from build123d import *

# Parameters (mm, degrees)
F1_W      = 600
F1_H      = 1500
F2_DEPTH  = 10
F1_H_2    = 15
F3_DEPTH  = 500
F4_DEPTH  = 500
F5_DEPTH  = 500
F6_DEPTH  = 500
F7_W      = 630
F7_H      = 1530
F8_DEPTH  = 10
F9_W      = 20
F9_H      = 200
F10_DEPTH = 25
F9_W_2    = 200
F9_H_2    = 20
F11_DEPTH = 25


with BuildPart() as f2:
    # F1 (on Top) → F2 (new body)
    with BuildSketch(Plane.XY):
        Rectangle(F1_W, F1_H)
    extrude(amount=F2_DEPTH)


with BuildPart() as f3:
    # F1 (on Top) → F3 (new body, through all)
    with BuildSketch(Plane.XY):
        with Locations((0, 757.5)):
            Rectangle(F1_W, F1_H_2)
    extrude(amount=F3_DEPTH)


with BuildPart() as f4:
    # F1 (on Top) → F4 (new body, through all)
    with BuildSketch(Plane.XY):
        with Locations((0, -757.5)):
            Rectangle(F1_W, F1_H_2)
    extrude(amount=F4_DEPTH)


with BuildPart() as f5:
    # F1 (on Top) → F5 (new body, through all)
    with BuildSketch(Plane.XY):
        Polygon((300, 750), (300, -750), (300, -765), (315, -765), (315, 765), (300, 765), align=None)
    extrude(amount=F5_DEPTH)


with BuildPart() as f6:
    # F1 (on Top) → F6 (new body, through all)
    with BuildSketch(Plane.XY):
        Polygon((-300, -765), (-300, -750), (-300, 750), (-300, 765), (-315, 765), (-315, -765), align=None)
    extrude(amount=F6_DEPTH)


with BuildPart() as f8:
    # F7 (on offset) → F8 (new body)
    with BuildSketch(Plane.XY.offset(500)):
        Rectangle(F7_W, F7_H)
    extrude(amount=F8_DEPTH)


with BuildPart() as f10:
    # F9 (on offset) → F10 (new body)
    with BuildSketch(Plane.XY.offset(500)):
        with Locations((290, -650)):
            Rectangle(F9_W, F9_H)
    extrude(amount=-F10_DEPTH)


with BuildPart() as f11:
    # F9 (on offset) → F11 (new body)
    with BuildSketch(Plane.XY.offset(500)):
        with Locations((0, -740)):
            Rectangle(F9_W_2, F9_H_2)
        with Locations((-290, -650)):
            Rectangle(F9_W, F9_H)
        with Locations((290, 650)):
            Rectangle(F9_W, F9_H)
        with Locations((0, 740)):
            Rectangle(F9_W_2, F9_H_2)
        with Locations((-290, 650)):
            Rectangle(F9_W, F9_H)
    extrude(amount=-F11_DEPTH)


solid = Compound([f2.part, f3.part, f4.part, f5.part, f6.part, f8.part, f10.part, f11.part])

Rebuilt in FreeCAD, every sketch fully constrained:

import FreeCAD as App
import Part
import Sketcher
from FreeCAD import Vector


def add_polygon(sketch, points):
    """Adds a closed chain of lines whose ends are joined by coincident constraints."""
    first, n = sketch.GeometryCount, len(points)
    for a, b in zip(points, points[1:] + points[:1]):
        sketch.addGeometry(Part.LineSegment(App.Vector(*a, 0), App.Vector(*b, 0)), False)
    for i in range(n):
        sketch.addConstraint(Sketcher.Constraint("Coincident", first + i, 2, first + (i + 1) % n, 1))

doc = App.newDocument("Part")
params = doc.addObject("Spreadsheet::Sheet", "Params")
for row, (alias, value) in enumerate([
    ("sketch1_width", "600 mm"),
    ("sketch1_height", "1500 mm"),
    ("pad1_length", "10 mm"),
    ("sketch2_width", "600 mm"),
    ("sketch2_height", "15 mm"),
    ("pad2_length", "500 mm"),
    ("sketch3_width", "600 mm"),
    ("sketch3_height", "15 mm"),
    ("pad3_length", "500 mm"),
    ("sketch4_width", "15 mm"),
    ("sketch4_height", "1530 mm"),
    ("pad4_length", "500 mm"),
    ("sketch5_width", "15 mm"),
    ("sketch5_height", "1530 mm"),
    ("pad5_length", "500 mm"),
    ("sketch6_width", "630 mm"),
    ("sketch6_height", "1530 mm"),
    ("pad6_length", "10 mm"),
    ("sketch7_width", "20 mm"),
    ("sketch7_height", "200 mm"),
    ("pad7_length", "25 mm"),
    ("sketch8_width", "200 mm"),
    ("sketch8_width2", "20 mm"),
    ("pad8_length", "25 mm"),
], start=1):
    params.set(f"A{row}", alias)
    params.set(f"B{row}", "=" + value)
    params.setAlias(f"B{row}", alias)

body = doc.addObject("PartDesign::Body", "Body")

# Sketch on XY plane
sketch1 = body.newObject("Sketcher::SketchObject", "Sketch")
sketch1.AttachmentSupport = (doc.getObject("XY_Plane"), [""])
sketch1.MapMode = "FlatFace"
add_polygon(sketch1, [(-300, 750), (-300, -750), (300, -750), (300, 750)])  # lines 0-3
sketch1.addConstraint(Sketcher.Constraint("Vertical", 0))
sketch1.addConstraint(Sketcher.Constraint("Horizontal", 1))
sketch1.addConstraint(Sketcher.Constraint("Vertical", 2))
sketch1.addConstraint(Sketcher.Constraint("Horizontal", 3))
sketch1.addConstraint(Sketcher.Constraint("Symmetric", 0, 2, 2, 2, -1, 1))
sketch1.addConstraint(Sketcher.Constraint("DistanceX", 1, 1, 1, 2, 600.0))
sketch1.addConstraint(Sketcher.Constraint("DistanceY", 0, 2, 0, 1, 1500.0))
sketch1.setExpression("Constraints[9]", "Params.sketch1_width")
sketch1.setExpression("Constraints[10]", "Params.sketch1_height")
pad1 = body.newObject("PartDesign::Pad", "Pad")
pad1.Profile = sketch1
pad1.setExpression("Length", "Params.pad1_length")
body2 = doc.addObject("PartDesign::Body", "Body001")

# Sketch on XY plane
sketch2 = body2.newObject("Sketcher::SketchObject", "Sketch001")
sketch2.AttachmentSupport = (doc.getObject("XY_Plane001"), [""])
sketch2.MapMode = "FlatFace"
add_polygon(sketch2, [(-300, 765), (-300, 750), (300, 750), (300, 765)])  # lines 0-3
sketch2.addConstraint(Sketcher.Constraint("Vertical", 0))
sketch2.addConstraint(Sketcher.Constraint("Horizontal", 1))
sketch2.addConstraint(Sketcher.Constraint("Vertical", 2))
sketch2.addConstraint(Sketcher.Constraint("Horizontal", 3))
sketch2.addConstraint(Sketcher.Constraint("DistanceX", 1, 1, 1, 2, 600.0))
sketch2.addConstraint(Sketcher.Constraint("DistanceY", 0, 2, 0, 1, 15.0))
sketch2.addConstraint(Sketcher.Constraint("DistanceX", 0, 2, -1, 1, 300.0))
sketch2.addConstraint(Sketcher.Constraint("DistanceY", -1, 1, 0, 2, 750.0))
sketch2.setExpression("Constraints[8]", "Params.sketch2_width")
sketch2.setExpression("Constraints[9]", "Params.sketch2_height")
pad2 = body2.newObject("PartDesign::Pad", "Pad001")
pad2.Profile = sketch2
pad2.setExpression("Length", "Params.pad2_length")
body3 = doc.addObject("PartDesign::Body", "Body002")

# Sketch on XY plane
sketch3 = body3.newObject("Sketcher::SketchObject", "Sketch002")
sketch3.AttachmentSupport = (doc.getObject("XY_Plane002"), [""])
sketch3.MapMode = "FlatFace"
add_polygon(sketch3, [(-300, -750), (-300, -765), (300, -765), (300, -750)])  # lines 0-3
sketch3.addConstraint(Sketcher.Constraint("Vertical", 0))
sketch3.addConstraint(Sketcher.Constraint("Horizontal", 1))
sketch3.addConstraint(Sketcher.Constraint("Vertical", 2))
sketch3.addConstraint(Sketcher.Constraint("Horizontal", 3))
sketch3.addConstraint(Sketcher.Constraint("DistanceX", 1, 1, 1, 2, 600.0))
sketch3.addConstraint(Sketcher.Constraint("DistanceY", 0, 2, 0, 1, 15.0))
sketch3.addConstraint(Sketcher.Constraint("DistanceX", 0, 2, -1, 1, 300.0))
sketch3.addConstraint(Sketcher.Constraint("DistanceY", 0, 2, -1, 1, 765.0))
sketch3.setExpression("Constraints[8]", "Params.sketch3_width")
sketch3.setExpression("Constraints[9]", "Params.sketch3_height")
pad3 = body3.newObject("PartDesign::Pad", "Pad002")
pad3.Profile = sketch3
pad3.setExpression("Length", "Params.pad3_length")
body4 = doc.addObject("PartDesign::Body", "Body003")

# Sketch on XY plane
sketch4 = body4.newObject("Sketcher::SketchObject", "Sketch003")
sketch4.AttachmentSupport = (doc.getObject("XY_Plane003"), [""])
sketch4.MapMode = "FlatFace"
add_polygon(sketch4, [(300, -765), (315, -765), (315, 765), (300, 765)])  # lines 0-3
sketch4.addConstraint(Sketcher.Constraint("Horizontal", 0))
sketch4.addConstraint(Sketcher.Constraint("Vertical", 1))
sketch4.addConstraint(Sketcher.Constraint("Horizontal", 2))
sketch4.addConstraint(Sketcher.Constraint("Vertical", 3))
sketch4.addConstraint(Sketcher.Constraint("DistanceX", 0, 1, 0, 2, 15.0))
sketch4.addConstraint(Sketcher.Constraint("DistanceY", 1, 1, 1, 2, 1530.0))
sketch4.addConstraint(Sketcher.Constraint("DistanceX", -1, 1, 0, 2, 315.0))
sketch4.addConstraint(Sketcher.Constraint("DistanceY", 0, 2, -1, 1, 765.0))
sketch4.setExpression("Constraints[8]", "Params.sketch4_width")
sketch4.setExpression("Constraints[9]", "Params.sketch4_height")
pad4 = body4.newObject("PartDesign::Pad", "Pad003")
pad4.Profile = sketch4
pad4.setExpression("Length", "Params.pad4_length")
body5 = doc.addObject("PartDesign::Body", "Body004")

# Sketch on XY plane
sketch5 = body5.newObject("Sketcher::SketchObject", "Sketch004")
sketch5.AttachmentSupport = (doc.getObject("XY_Plane004"), [""])
sketch5.MapMode = "FlatFace"
add_polygon(sketch5, [(-300, -765), (-300, 765), (-315, 765), (-315, -765)])  # lines 0-3
sketch5.addConstraint(Sketcher.Constraint("Vertical", 0))
sketch5.addConstraint(Sketcher.Constraint("Horizontal", 1))
sketch5.addConstraint(Sketcher.Constraint("Vertical", 2))
sketch5.addConstraint(Sketcher.Constraint("Horizontal", 3))
sketch5.addConstraint(Sketcher.Constraint("DistanceX", 1, 2, 1, 1, 15.0))
sketch5.addConstraint(Sketcher.Constraint("DistanceY", 0, 1, 0, 2, 1530.0))
sketch5.addConstraint(Sketcher.Constraint("DistanceX", 0, 2, -1, 1, 300.0))
sketch5.addConstraint(Sketcher.Constraint("DistanceY", -1, 1, 0, 2, 765.0))
sketch5.setExpression("Constraints[8]", "Params.sketch5_width")
sketch5.setExpression("Constraints[9]", "Params.sketch5_height")
pad5 = body5.newObject("PartDesign::Pad", "Pad004")
pad5.Profile = sketch5
pad5.setExpression("Length", "Params.pad5_length")
body6 = doc.addObject("PartDesign::Body", "Body005")

# Sketch on XY plane
sketch6 = body6.newObject("Sketcher::SketchObject", "Sketch005")
sketch6.AttachmentSupport = (doc.getObject("XY_Plane005"), [""])
sketch6.MapMode = "FlatFace"
sketch6.AttachmentOffset = App.Placement(Vector(0, 0, 500), App.Rotation())
add_polygon(sketch6, [(-315, 765), (-315, -765), (315, -765), (315, 765)])  # lines 0-3
sketch6.addConstraint(Sketcher.Constraint("Vertical", 0))
sketch6.addConstraint(Sketcher.Constraint("Horizontal", 1))
sketch6.addConstraint(Sketcher.Constraint("Vertical", 2))
sketch6.addConstraint(Sketcher.Constraint("Horizontal", 3))
sketch6.addConstraint(Sketcher.Constraint("Symmetric", 0, 2, 2, 2, -1, 1))
sketch6.addConstraint(Sketcher.Constraint("DistanceX", 1, 1, 1, 2, 630.0))
sketch6.addConstraint(Sketcher.Constraint("DistanceY", 0, 2, 0, 1, 1530.0))
sketch6.setExpression("Constraints[9]", "Params.sketch6_width")
sketch6.setExpression("Constraints[10]", "Params.sketch6_height")
pad6 = body6.newObject("PartDesign::Pad", "Pad005")
pad6.Profile = sketch6
pad6.setExpression("Length", "Params.pad6_length")
body7 = doc.addObject("PartDesign::Body", "Body006")

# Sketch on XY plane
sketch7 = body7.newObject("Sketcher::SketchObject", "Sketch006")
sketch7.AttachmentSupport = (doc.getObject("XY_Plane006"), [""])
sketch7.MapMode = "FlatFace"
sketch7.AttachmentOffset = App.Placement(Vector(0, 0, 500), App.Rotation())
add_polygon(sketch7, [(280, -550), (280, -750), (300, -750), (300, -550)])  # lines 0-3
sketch7.addConstraint(Sketcher.Constraint("Vertical", 0))
sketch7.addConstraint(Sketcher.Constraint("Horizontal", 1))
sketch7.addConstraint(Sketcher.Constraint("Vertical", 2))
sketch7.addConstraint(Sketcher.Constraint("Horizontal", 3))
sketch7.addConstraint(Sketcher.Constraint("DistanceX", 1, 1, 1, 2, 20.0))
sketch7.addConstraint(Sketcher.Constraint("DistanceY", 0, 2, 0, 1, 200.0))
sketch7.addConstraint(Sketcher.Constraint("DistanceX", -1, 1, 0, 2, 280.0))
sketch7.addConstraint(Sketcher.Constraint("DistanceY", 0, 2, -1, 1, 750.0))
sketch7.setExpression("Constraints[8]", "Params.sketch7_width")
sketch7.setExpression("Constraints[9]", "Params.sketch7_height")
pad7 = body7.newObject("PartDesign::Pad", "Pad006")
pad7.Profile = sketch7
pad7.setExpression("Length", "Params.pad7_length")
pad7.Reversed = True
body8 = doc.addObject("PartDesign::Body", "Body007")
body8.AllowCompound = True

# Sketch on XY plane
sketch8 = body8.newObject("Sketcher::SketchObject", "Sketch007")
sketch8.AttachmentSupport = (doc.getObject("XY_Plane007"), [""])
sketch8.MapMode = "FlatFace"
sketch8.AttachmentOffset = App.Placement(Vector(0, 0, 500), App.Rotation())
add_polygon(sketch8, [(-100, -730), (-100, -750), (100, -750), (100, -730)])  # lines 0-3
add_polygon(sketch8, [(-300, -550), (-300, -750), (-280, -750), (-280, -550)])  # lines 4-7
add_polygon(sketch8, [(280, 750), (280, 550), (300, 550), (300, 750)])  # lines 8-11
add_polygon(sketch8, [(-100, 750), (-100, 730), (100, 730), (100, 750)])  # lines 12-15
add_polygon(sketch8, [(-300, 750), (-300, 550), (-280, 550), (-280, 750)])  # lines 16-19
sketch8.addConstraint(Sketcher.Constraint("Vertical", 0))
sketch8.addConstraint(Sketcher.Constraint("Horizontal", 1))
sketch8.addConstraint(Sketcher.Constraint("Vertical", 2))
sketch8.addConstraint(Sketcher.Constraint("Horizontal", 3))
sketch8.addConstraint(Sketcher.Constraint("Vertical", 4))
sketch8.addConstraint(Sketcher.Constraint("Horizontal", 5))
sketch8.addConstraint(Sketcher.Constraint("Vertical", 6))
sketch8.addConstraint(Sketcher.Constraint("Horizontal", 7))
sketch8.addConstraint(Sketcher.Constraint("Vertical", 8))
sketch8.addConstraint(Sketcher.Constraint("Horizontal", 9))
sketch8.addConstraint(Sketcher.Constraint("Vertical", 10))
sketch8.addConstraint(Sketcher.Constraint("Horizontal", 11))
sketch8.addConstraint(Sketcher.Constraint("Vertical", 12))
sketch8.addConstraint(Sketcher.Constraint("Horizontal", 13))
sketch8.addConstraint(Sketcher.Constraint("Vertical", 14))
sketch8.addConstraint(Sketcher.Constraint("Horizontal", 15))
sketch8.addConstraint(Sketcher.Constraint("Vertical", 16))
sketch8.addConstraint(Sketcher.Constraint("Horizontal", 17))
sketch8.addConstraint(Sketcher.Constraint("Vertical", 18))
sketch8.addConstraint(Sketcher.Constraint("Horizontal", 19))
sketch8.addConstraint(Sketcher.Constraint("Symmetric", 6, 2, 8, 2, -1, 1))
sketch8.addConstraint(Sketcher.Constraint("Symmetric", 4, 2, 10, 2, -1, 1))
sketch8.addConstraint(Sketcher.Constraint("Symmetric", 2, 2, 12, 2, -1, 1))
sketch8.addConstraint(Sketcher.Constraint("Symmetric", 0, 2, 14, 2, -1, 1))
sketch8.addConstraint(Sketcher.Constraint("Symmetric", 9, 2, 16, 2, -2))
sketch8.addConstraint(Sketcher.Constraint("Symmetric", 11, 2, 18, 2, -2))
sketch8.addConstraint(Sketcher.Constraint("Horizontal", 1, 2, 4, 2))
sketch8.addConstraint(Sketcher.Constraint("Vertical", 3, 2, 12, 2))
sketch8.addConstraint(Sketcher.Constraint("Equal", 19, 0))
sketch8.addConstraint(Sketcher.Constraint("Equal", 15, 4))
sketch8.addConstraint(Sketcher.Constraint("DistanceX", 1, 1, 1, 2, 200.0))
sketch8.addConstraint(Sketcher.Constraint("DistanceX", 5, 1, 5, 2, 20.0))
sketch8.addConstraint(Sketcher.Constraint("DistanceY", 0, 2, -1, 1, 750.0))
sketch8.addConstraint(Sketcher.Constraint("DistanceX", 4, 2, -1, 1, 300.0))
sketch8.setExpression("Constraints[50]", "Params.sketch8_width")
sketch8.setExpression("Constraints[51]", "Params.sketch8_width2")
pad8 = body8.newObject("PartDesign::Pad", "Pad007")
pad8.Profile = sketch8
pad8.setExpression("Length", "Params.pad8_length")
pad8.Reversed = True

doc.recompute()
